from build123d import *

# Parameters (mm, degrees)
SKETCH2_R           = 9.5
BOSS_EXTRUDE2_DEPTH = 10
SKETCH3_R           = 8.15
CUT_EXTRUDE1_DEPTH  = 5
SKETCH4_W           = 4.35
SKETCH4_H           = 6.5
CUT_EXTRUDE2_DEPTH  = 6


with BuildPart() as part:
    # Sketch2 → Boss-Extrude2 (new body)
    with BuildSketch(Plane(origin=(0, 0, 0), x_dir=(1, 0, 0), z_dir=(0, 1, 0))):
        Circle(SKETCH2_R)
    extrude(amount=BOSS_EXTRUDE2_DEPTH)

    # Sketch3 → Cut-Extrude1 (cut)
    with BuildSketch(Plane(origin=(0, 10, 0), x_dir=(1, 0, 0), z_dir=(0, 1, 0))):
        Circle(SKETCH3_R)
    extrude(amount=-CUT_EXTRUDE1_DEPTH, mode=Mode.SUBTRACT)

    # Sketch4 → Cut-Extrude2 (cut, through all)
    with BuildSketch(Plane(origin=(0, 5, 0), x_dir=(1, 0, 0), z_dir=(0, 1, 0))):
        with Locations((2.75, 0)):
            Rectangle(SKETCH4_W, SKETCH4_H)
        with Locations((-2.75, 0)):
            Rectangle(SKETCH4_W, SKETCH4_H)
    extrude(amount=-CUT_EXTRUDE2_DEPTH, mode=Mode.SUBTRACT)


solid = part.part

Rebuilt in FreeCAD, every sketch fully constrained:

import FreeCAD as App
import Part
import Sketcher

V = App.Vector
Q = App.Units.Quantity

doc = App.newDocument("Part")
body = doc.addObject("PartDesign::Body", "Body")

# Sketch on XZ plane
sketch1 = doc.addObject("Sketcher::SketchObject", "Sketch")
body.addObject(sketch1)
sketch1.AttachmentSupport = (doc.XZ_Plane, [""])
sketch1.MapMode = "FlatFace"
sketch1.addGeometry(Part.Circle(V(0, 0, 0), V(0, 0, 1), 10), False)
sketch1.addConstraint([
    Sketcher.Constraint("Coincident", 0, 3, -1, 1),
    Sketcher.Constraint("Diameter", 0, Q("19 mm")),
])
pad1 = doc.addObject("PartDesign::Pad", "Pad")
body.addObject(pad1)
pad1.Profile = sketch1
pad1.Length = 10
pad1.Reversed = True

# Sketch on XZ plane
sketch2 = doc.addObject("Sketcher::SketchObject", "Sketch001")
body.addObject(sketch2)
sketch2.AttachmentSupport = (doc.XZ_Plane, [""])
sketch2.MapMode = "FlatFace"
sketch2.AttachmentOffset = App.Placement(V(0, 0, -10), App.Rotation())
sketch2.addGeometry(Part.Circle(V(0, 0, 0), V(0, 0, 1), 8), False)
sketch2.addConstraint([
    Sketcher.Constraint("Coincident", 0, 3, -1, 1),
    Sketcher.Constraint("Diameter", 0, Q("16.3 mm")),
])
pocket1 = doc.addObject("PartDesign::Pocket", "Pocket")
body.addObject(pocket1)
pocket1.Profile = sketch2
pocket1.Length = 5
pocket1.Reversed = True

# Sketch on XZ plane
sketch3 = doc.addObject("Sketcher::SketchObject", "Sketch002")
body.addObject(sketch3)
sketch3.AttachmentSupport = (doc.XZ_Plane, [""])
sketch3.MapMode = "FlatFace"
sketch3.AttachmentOffset = App.Placement(V(0, 0, -5), App.Rotation())
sketch3.addGeometry([
    Part.LineSegment(V(0.6, -3.2, 0), V(0.6, 3.2, 0)),  # 0
    Part.LineSegment(V(0.6, 3.2, 0), V(4.9, 3.2, 0)),  # 1
    Part.LineSegment(V(4.9, 3.2, 0), V(4.9, -3.2, 0)),  # 2
    Part.LineSegment(V(4.9, -3.2, 0), V(0.6, -3.2, 0)),  # 3
    Part.LineSegment(V(-4.9, -3.2, 0), V(-4.9, 3.2, 0)),  # 4
    Part.LineSegment(V(-4.9, 3.2, 0), V(-0.6, 3.2, 0)),  # 5
    Part.LineSegment(V(-0.6, 3.2, 0), V(-0.6, -3.2, 0)),  # 6
    Part.LineSegment(V(-0.6, -3.2, 0), V(-4.9, -3.2, 0)),  # 7
], False)
sketch3.addConstraint([
    Sketcher.Constraint("Coincident", 0, 2, 1, 1),
    Sketcher.Constraint("Coincident", 1, 2, 2, 1),
    Sketcher.Constraint("Coincident", 2, 2, 3, 1),
    Sketcher.Constraint("Coincident", 3, 2, 0, 1),
    Sketcher.Constraint("Coincident", 4, 2, 5, 1),
    Sketcher.Constraint("Coincident", 5, 2, 6, 1),
    Sketcher.Constraint("Coincident", 6, 2, 7, 1),
    Sketcher.Constraint("Coincident", 7, 2, 4, 1),
    Sketcher.Constraint("Vertical", 0),
    Sketcher.Constraint("Horizontal", 1),
    Sketcher.Constraint("Vertical", 2),
    Sketcher.Constraint("Horizontal", 3),
    Sketcher.Constraint("Vertical", 4),
    Sketcher.Constraint("Horizontal", 5),
    Sketcher.Constraint("Vertical", 6),
    Sketcher.Constraint("Horizontal", 7),
    Sketcher.Constraint("Symmetric", 2, 2, 4, 2, -1, 1),
    Sketcher.Constraint("Symmetric", 0, 2, 6, 2, -1, 1),
    Sketcher.Constraint("Horizontal", 1, 2, 4, 2),
    Sketcher.Constraint("DistanceY", 0, 1, 0, 2, Q("6.5 mm")),
    Sketcher.Constraint("DistanceX", 1, 1, 1, 2, Q("4.35 mm")),
    Sketcher.Constraint("DistanceX", 4, 2, 0, 2, Q("5.5 mm")),
])
pocket2 = doc.addObject("PartDesign::Pocket", "Pocket001")
body.addObject(pocket2)
pocket2.Profile = sketch3
pocket2.Type = "ThroughAll"
pocket2.Reversed = True

doc.recompute()
